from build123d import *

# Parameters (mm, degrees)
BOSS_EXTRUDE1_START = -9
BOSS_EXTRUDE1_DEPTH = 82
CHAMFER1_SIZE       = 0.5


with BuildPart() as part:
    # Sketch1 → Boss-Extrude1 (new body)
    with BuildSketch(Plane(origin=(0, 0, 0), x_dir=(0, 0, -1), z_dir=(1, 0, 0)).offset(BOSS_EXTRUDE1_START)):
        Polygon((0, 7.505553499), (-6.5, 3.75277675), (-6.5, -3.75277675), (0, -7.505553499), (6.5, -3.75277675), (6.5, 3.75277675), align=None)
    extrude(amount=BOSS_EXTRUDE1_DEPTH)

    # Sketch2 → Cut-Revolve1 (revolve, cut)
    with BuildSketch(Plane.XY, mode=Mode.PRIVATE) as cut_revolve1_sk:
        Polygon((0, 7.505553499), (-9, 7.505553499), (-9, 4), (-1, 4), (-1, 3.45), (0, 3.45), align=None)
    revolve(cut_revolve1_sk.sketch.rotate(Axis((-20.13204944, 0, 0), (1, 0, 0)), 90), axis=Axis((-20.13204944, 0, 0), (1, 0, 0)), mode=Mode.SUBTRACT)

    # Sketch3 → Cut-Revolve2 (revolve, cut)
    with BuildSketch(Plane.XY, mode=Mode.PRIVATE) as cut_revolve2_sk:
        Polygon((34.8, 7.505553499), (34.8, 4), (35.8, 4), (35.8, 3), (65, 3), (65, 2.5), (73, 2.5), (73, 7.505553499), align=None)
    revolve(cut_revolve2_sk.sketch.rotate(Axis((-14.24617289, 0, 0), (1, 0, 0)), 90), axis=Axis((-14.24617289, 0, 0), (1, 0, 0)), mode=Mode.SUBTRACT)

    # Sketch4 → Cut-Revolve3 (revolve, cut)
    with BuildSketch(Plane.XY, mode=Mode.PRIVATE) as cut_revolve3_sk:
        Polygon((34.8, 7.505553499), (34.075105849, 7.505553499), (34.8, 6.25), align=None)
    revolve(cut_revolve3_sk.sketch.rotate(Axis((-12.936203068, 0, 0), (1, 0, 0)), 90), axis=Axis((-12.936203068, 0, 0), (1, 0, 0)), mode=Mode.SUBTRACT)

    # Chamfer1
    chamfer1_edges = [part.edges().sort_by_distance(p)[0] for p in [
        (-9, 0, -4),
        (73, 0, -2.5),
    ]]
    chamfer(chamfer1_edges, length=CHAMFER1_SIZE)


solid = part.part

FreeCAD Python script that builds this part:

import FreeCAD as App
import Part
import Sketcher

V = App.Vector
Q = App.Units.Quantity


def edges_at(feature, points):
    """Names of the edges that pass closest to the given points."""
    edges = feature.Shape.Edges
    near = lambda p: min(range(len(edges)), key=lambda i: edges[i].distToShape(Part.Vertex(*p))[0])
    return sorted({f"Edge{near(p) + 1}" for p in points})

doc = App.newDocument("Part")
body = doc.addObject("PartDesign::Body", "Body")

sketch1 = doc.addObject("Sketcher::SketchObject", "Sketch")
body.addObject(sketch1)
sketch1.AttachmentSupport = (doc.YZ_Plane, [""])
sketch1.MapMode = "FlatFace"
sketch1.AttachmentOffset = App.Placement(V(0, 0, -9), App.Rotation())
sketch1.addGeometry([
    Part.LineSegment(V(8, 0, 0), V(4, 6, 0)),
    Part.LineSegment(V(4, 6, 0), V(-4, 6, 0)),
    Part.LineSegment(V(-4, 6, 0), V(-8, 0, 0)),
    Part.LineSegment(V(-8, 0, 0), V(-4, -6, 0)),
    Part.LineSegment(V(-4, -6, 0), V(4, -6, 0)),
    Part.LineSegment(V(4, -6, 0), V(8, 0, 0)),
], False)
sketch1.addConstraint([
    Sketcher.Constraint("Coincident", 0, 2, 1, 1),
    Sketcher.Constraint("Coincident", 1, 2, 2, 1),
    Sketcher.Constraint("Coincident", 2, 2, 3, 1),
    Sketcher.Constraint("Coincident", 3, 2, 4, 1),
    Sketcher.Constraint("Coincident", 4, 2, 5, 1),
    Sketcher.Constraint("Coincident", 5, 2, 0, 1),
    Sketcher.Constraint("Horizontal", 1),
    Sketcher.Constraint("Horizontal", 4),
    Sketcher.Constraint("Symmetric", 0, 2, 3, 2, -1, 1),
    Sketcher.Constraint("Symmetric", 2, 2, 5, 2, -1, 1),
    Sketcher.Constraint("PointOnObject", 2, 2, -1),
    Sketcher.Constraint("Parallel", 2, 5),
    Sketcher.Constraint("Vertical", 1, 2, 3, 2),
    Sketcher.Constraint("Angle", 0, Q("120 deg")),
    Sketcher.Constraint("DistanceY", 3, 2, 1, 2, Q("13 mm")),
    Sketcher.Constraint("DistanceX", 1, 2, 1, 1, Q("7.505554 mm")),
])
pad1 = doc.addObject("PartDesign::Pad", "Pad")
body.addObject(pad1)
pad1.Profile = sketch1
pad1.Length = 82

sketch2 = doc.addObject("Sketcher::SketchObject", "Sketch001")
body.addObject(sketch2)
sketch2.AttachmentSupport = (doc.XY_Plane, [""])
sketch2.MapMode = "FlatFace"
sketch2.addGeometry([
    Part.LineSegment(V(0, 7.5, 0), V(-9, 7.5, 0)),
    Part.LineSegment(V(-9, 7.5, 0), V(-9, 4, 0)),
    Part.LineSegment(V(-9, 4, 0), V(-1, 4, 0)),
    Part.LineSegment(V(-1, 4, 0), V(-1, 3.5, 0)),
    Part.LineSegment(V(-1, 3.5, 0), V(0, 3.5, 0)),
    Part.LineSegment(V(0, 3.5, 0), V(0, 7.5, 0)),
], False)
sketch2.addConstraint([
    Sketcher.Constraint("Coincident", 0, 2, 1, 1),
    Sketcher.Constraint("Coincident", 1, 2, 2, 1),
    Sketcher.Constraint("Coincident", 2, 2, 3, 1),
    Sketcher.Constraint("Coincident", 3, 2, 4, 1),
    Sketcher.Constraint("Coincident", 4, 2, 5, 1),
    Sketcher.Constraint("Coincident", 5, 2, 0, 1),
    Sketcher.Constraint("Horizontal", 0),
    Sketcher.Constraint("Vertical", 1),
    Sketcher.Constraint("Horizontal", 2),
    Sketcher.Constraint("Vertical", 3),
    Sketcher.Constraint("Horizontal", 4),
    Sketcher.Constraint("Vertical", 5),
    Sketcher.Constraint("PointOnObject", 4, 2, -2),
    Sketcher.Constraint("DistanceX", 0, 2, 0, 1, Q("9 mm")),
    Sketcher.Constraint("DistanceX", 2, 1, 2, 2, Q("8 mm")),
    Sketcher.Constraint("DistanceY", -1, 1, 1, 2, Q("4 mm")),
    Sketcher.Constraint("DistanceY", 3, 2, 3, 1, Q("0.55 mm")),
    Sketcher.Constraint("DistanceY", 1, 2, 1, 1, Q("3.505553 mm")),
])
groove = doc.addObject("PartDesign::Groove", "Groove")
body.addObject(groove)
groove.Profile = sketch2
groove.ReferenceAxis = (sketch2, ["H_Axis"])
groove.Angle = 360

sketch3 = doc.addObject("Sketcher::SketchObject", "Sketch002")
body.addObject(sketch3)
sketch3.AttachmentSupport = (doc.XY_Plane, [""])
sketch3.MapMode = "FlatFace"
sketch3.addGeometry([
    Part.LineSegment(V(34.8, 7.5, 0), V(34.8, 4, 0)),
    Part.LineSegment(V(34.8, 4, 0), V(35.8, 4, 0)),
    Part.LineSegment(V(35.8, 4, 0), V(35.8, 3, 0)),
    Part.LineSegment(V(35.8, 3, 0), V(65, 3, 0)),
    Part.LineSegment(V(65, 3, 0), V(65, 2.5, 0)),
    Part.LineSegment(V(65, 2.5, 0), V(73, 2.5, 0)),
    Part.LineSegment(V(73, 2.5, 0), V(73, 7.5, 0)),
    Part.LineSegment(V(73, 7.5, 0), V(34.8, 7.5, 0)),
], False)
sketch3.addConstraint([
    Sketcher.Constraint("Coincident", 0, 2, 1, 1),
    Sketcher.Constraint("Coincident", 1, 2, 2, 1),
    Sketcher.Constraint("Coincident", 2, 2, 3, 1),
    Sketcher.Constraint("Coincident", 3, 2, 4, 1),
    Sketcher.Constraint("Coincident", 4, 2, 5, 1),
    Sketcher.Constraint("Coincident", 5, 2, 6, 1),
    Sketcher.Constraint("Coincident", 6, 2, 7, 1),
    Sketcher.Constraint("Coincident", 7, 2, 0, 1),
    Sketcher.Constraint("Vertical", 0),
    Sketcher.Constraint("Horizontal", 1),
    Sketcher.Constraint("Vertical", 2),
    Sketcher.Constraint("Horizontal", 3),
    Sketcher.Constraint("Vertical", 4),
    Sketcher.Constraint("Horizontal", 5),
    Sketcher.Constraint("Vertical", 6),
    Sketcher.Constraint("Horizontal", 7),
    Sketcher.Constraint("Equal", 1, 2),
    Sketcher.Constraint("DistanceX", 1, 1, 1, 2, Q("1 mm")),
    Sketcher.Constraint("DistanceX", 5, 1, 5, 2, Q("8 mm")),
    Sketcher.Constraint("DistanceX", 3, 1, 3, 2, Q("29.2 mm")),
    Sketcher.Constraint("DistanceY", 4, 2, 4, 1, Q("0.5 mm")),
    Sketcher.Constraint("DistanceY", -1, 1, 0, 2, Q("4 mm")),
    Sketcher.Constraint("DistanceX", -1, 1, 3, 2, Q("65 mm")),
    Sketcher.Constraint("DistanceY", 0, 2, 0, 1, Q("3.505553 mm")),
])
groove2 = doc.addObject("PartDesign::Groove", "Groove001")
body.addObject(groove2)
groove2.Profile = sketch3
groove2.ReferenceAxis = (sketch3, ["H_Axis"])
groove2.Angle = 360

sketch4 = doc.addObject("Sketcher::SketchObject", "Sketch003")
body.addObject(sketch4)
sketch4.AttachmentSupport = (doc.XY_Plane, [""])
sketch4.MapMode = "FlatFace"
sketch4.addGeometry([
    Part.LineSegment(V(34.8, 7.5, 0), V(34.1, 7.5, 0)),
    Part.LineSegment(V(34.1, 7.5, 0), V(34.8, 6.2, 0)),
    Part.LineSegment(V(34.8, 6.2, 0), V(34.8, 7.5, 0)),
], False)
sketch4.addConstraint([
    Sketcher.Constraint("Coincident", 0, 2, 1, 1),
    Sketcher.Constraint("Coincident", 1, 2, 2, 1),
    Sketcher.Constraint("Coincident", 2, 2, 0, 1),
    Sketcher.Constraint("Horizontal", 0),
    Sketcher.Constraint("Vertical", 2),
    Sketcher.Constraint("Angle", 1, Q("-60 deg")),
    Sketcher.Constraint("DistanceX", -1, 1, 1, 2, Q("34.8 mm")),
    Sketcher.Constraint("DistanceY", -1, 1, 1, 2, Q("6.25 mm")),
    Sketcher.Constraint("Distance", 1, Q("1.449788 mm")),
])
groove3 = doc.addObject("PartDesign::Groove", "Groove002")
body.addObject(groove3)
groove3.Profile = sketch4
groove3.ReferenceAxis = (sketch4, ["H_Axis"])
groove3.Angle = 360
doc.recompute()

chamfer = doc.addObject("PartDesign::Chamfer", "Chamfer")
body.addObject(chamfer)
chamfer.Base = (groove3, edges_at(groove3, [(-9, 0, -4), (73, 0, -2.5)]))
chamfer.Size = 0.5

doc.recompute()
